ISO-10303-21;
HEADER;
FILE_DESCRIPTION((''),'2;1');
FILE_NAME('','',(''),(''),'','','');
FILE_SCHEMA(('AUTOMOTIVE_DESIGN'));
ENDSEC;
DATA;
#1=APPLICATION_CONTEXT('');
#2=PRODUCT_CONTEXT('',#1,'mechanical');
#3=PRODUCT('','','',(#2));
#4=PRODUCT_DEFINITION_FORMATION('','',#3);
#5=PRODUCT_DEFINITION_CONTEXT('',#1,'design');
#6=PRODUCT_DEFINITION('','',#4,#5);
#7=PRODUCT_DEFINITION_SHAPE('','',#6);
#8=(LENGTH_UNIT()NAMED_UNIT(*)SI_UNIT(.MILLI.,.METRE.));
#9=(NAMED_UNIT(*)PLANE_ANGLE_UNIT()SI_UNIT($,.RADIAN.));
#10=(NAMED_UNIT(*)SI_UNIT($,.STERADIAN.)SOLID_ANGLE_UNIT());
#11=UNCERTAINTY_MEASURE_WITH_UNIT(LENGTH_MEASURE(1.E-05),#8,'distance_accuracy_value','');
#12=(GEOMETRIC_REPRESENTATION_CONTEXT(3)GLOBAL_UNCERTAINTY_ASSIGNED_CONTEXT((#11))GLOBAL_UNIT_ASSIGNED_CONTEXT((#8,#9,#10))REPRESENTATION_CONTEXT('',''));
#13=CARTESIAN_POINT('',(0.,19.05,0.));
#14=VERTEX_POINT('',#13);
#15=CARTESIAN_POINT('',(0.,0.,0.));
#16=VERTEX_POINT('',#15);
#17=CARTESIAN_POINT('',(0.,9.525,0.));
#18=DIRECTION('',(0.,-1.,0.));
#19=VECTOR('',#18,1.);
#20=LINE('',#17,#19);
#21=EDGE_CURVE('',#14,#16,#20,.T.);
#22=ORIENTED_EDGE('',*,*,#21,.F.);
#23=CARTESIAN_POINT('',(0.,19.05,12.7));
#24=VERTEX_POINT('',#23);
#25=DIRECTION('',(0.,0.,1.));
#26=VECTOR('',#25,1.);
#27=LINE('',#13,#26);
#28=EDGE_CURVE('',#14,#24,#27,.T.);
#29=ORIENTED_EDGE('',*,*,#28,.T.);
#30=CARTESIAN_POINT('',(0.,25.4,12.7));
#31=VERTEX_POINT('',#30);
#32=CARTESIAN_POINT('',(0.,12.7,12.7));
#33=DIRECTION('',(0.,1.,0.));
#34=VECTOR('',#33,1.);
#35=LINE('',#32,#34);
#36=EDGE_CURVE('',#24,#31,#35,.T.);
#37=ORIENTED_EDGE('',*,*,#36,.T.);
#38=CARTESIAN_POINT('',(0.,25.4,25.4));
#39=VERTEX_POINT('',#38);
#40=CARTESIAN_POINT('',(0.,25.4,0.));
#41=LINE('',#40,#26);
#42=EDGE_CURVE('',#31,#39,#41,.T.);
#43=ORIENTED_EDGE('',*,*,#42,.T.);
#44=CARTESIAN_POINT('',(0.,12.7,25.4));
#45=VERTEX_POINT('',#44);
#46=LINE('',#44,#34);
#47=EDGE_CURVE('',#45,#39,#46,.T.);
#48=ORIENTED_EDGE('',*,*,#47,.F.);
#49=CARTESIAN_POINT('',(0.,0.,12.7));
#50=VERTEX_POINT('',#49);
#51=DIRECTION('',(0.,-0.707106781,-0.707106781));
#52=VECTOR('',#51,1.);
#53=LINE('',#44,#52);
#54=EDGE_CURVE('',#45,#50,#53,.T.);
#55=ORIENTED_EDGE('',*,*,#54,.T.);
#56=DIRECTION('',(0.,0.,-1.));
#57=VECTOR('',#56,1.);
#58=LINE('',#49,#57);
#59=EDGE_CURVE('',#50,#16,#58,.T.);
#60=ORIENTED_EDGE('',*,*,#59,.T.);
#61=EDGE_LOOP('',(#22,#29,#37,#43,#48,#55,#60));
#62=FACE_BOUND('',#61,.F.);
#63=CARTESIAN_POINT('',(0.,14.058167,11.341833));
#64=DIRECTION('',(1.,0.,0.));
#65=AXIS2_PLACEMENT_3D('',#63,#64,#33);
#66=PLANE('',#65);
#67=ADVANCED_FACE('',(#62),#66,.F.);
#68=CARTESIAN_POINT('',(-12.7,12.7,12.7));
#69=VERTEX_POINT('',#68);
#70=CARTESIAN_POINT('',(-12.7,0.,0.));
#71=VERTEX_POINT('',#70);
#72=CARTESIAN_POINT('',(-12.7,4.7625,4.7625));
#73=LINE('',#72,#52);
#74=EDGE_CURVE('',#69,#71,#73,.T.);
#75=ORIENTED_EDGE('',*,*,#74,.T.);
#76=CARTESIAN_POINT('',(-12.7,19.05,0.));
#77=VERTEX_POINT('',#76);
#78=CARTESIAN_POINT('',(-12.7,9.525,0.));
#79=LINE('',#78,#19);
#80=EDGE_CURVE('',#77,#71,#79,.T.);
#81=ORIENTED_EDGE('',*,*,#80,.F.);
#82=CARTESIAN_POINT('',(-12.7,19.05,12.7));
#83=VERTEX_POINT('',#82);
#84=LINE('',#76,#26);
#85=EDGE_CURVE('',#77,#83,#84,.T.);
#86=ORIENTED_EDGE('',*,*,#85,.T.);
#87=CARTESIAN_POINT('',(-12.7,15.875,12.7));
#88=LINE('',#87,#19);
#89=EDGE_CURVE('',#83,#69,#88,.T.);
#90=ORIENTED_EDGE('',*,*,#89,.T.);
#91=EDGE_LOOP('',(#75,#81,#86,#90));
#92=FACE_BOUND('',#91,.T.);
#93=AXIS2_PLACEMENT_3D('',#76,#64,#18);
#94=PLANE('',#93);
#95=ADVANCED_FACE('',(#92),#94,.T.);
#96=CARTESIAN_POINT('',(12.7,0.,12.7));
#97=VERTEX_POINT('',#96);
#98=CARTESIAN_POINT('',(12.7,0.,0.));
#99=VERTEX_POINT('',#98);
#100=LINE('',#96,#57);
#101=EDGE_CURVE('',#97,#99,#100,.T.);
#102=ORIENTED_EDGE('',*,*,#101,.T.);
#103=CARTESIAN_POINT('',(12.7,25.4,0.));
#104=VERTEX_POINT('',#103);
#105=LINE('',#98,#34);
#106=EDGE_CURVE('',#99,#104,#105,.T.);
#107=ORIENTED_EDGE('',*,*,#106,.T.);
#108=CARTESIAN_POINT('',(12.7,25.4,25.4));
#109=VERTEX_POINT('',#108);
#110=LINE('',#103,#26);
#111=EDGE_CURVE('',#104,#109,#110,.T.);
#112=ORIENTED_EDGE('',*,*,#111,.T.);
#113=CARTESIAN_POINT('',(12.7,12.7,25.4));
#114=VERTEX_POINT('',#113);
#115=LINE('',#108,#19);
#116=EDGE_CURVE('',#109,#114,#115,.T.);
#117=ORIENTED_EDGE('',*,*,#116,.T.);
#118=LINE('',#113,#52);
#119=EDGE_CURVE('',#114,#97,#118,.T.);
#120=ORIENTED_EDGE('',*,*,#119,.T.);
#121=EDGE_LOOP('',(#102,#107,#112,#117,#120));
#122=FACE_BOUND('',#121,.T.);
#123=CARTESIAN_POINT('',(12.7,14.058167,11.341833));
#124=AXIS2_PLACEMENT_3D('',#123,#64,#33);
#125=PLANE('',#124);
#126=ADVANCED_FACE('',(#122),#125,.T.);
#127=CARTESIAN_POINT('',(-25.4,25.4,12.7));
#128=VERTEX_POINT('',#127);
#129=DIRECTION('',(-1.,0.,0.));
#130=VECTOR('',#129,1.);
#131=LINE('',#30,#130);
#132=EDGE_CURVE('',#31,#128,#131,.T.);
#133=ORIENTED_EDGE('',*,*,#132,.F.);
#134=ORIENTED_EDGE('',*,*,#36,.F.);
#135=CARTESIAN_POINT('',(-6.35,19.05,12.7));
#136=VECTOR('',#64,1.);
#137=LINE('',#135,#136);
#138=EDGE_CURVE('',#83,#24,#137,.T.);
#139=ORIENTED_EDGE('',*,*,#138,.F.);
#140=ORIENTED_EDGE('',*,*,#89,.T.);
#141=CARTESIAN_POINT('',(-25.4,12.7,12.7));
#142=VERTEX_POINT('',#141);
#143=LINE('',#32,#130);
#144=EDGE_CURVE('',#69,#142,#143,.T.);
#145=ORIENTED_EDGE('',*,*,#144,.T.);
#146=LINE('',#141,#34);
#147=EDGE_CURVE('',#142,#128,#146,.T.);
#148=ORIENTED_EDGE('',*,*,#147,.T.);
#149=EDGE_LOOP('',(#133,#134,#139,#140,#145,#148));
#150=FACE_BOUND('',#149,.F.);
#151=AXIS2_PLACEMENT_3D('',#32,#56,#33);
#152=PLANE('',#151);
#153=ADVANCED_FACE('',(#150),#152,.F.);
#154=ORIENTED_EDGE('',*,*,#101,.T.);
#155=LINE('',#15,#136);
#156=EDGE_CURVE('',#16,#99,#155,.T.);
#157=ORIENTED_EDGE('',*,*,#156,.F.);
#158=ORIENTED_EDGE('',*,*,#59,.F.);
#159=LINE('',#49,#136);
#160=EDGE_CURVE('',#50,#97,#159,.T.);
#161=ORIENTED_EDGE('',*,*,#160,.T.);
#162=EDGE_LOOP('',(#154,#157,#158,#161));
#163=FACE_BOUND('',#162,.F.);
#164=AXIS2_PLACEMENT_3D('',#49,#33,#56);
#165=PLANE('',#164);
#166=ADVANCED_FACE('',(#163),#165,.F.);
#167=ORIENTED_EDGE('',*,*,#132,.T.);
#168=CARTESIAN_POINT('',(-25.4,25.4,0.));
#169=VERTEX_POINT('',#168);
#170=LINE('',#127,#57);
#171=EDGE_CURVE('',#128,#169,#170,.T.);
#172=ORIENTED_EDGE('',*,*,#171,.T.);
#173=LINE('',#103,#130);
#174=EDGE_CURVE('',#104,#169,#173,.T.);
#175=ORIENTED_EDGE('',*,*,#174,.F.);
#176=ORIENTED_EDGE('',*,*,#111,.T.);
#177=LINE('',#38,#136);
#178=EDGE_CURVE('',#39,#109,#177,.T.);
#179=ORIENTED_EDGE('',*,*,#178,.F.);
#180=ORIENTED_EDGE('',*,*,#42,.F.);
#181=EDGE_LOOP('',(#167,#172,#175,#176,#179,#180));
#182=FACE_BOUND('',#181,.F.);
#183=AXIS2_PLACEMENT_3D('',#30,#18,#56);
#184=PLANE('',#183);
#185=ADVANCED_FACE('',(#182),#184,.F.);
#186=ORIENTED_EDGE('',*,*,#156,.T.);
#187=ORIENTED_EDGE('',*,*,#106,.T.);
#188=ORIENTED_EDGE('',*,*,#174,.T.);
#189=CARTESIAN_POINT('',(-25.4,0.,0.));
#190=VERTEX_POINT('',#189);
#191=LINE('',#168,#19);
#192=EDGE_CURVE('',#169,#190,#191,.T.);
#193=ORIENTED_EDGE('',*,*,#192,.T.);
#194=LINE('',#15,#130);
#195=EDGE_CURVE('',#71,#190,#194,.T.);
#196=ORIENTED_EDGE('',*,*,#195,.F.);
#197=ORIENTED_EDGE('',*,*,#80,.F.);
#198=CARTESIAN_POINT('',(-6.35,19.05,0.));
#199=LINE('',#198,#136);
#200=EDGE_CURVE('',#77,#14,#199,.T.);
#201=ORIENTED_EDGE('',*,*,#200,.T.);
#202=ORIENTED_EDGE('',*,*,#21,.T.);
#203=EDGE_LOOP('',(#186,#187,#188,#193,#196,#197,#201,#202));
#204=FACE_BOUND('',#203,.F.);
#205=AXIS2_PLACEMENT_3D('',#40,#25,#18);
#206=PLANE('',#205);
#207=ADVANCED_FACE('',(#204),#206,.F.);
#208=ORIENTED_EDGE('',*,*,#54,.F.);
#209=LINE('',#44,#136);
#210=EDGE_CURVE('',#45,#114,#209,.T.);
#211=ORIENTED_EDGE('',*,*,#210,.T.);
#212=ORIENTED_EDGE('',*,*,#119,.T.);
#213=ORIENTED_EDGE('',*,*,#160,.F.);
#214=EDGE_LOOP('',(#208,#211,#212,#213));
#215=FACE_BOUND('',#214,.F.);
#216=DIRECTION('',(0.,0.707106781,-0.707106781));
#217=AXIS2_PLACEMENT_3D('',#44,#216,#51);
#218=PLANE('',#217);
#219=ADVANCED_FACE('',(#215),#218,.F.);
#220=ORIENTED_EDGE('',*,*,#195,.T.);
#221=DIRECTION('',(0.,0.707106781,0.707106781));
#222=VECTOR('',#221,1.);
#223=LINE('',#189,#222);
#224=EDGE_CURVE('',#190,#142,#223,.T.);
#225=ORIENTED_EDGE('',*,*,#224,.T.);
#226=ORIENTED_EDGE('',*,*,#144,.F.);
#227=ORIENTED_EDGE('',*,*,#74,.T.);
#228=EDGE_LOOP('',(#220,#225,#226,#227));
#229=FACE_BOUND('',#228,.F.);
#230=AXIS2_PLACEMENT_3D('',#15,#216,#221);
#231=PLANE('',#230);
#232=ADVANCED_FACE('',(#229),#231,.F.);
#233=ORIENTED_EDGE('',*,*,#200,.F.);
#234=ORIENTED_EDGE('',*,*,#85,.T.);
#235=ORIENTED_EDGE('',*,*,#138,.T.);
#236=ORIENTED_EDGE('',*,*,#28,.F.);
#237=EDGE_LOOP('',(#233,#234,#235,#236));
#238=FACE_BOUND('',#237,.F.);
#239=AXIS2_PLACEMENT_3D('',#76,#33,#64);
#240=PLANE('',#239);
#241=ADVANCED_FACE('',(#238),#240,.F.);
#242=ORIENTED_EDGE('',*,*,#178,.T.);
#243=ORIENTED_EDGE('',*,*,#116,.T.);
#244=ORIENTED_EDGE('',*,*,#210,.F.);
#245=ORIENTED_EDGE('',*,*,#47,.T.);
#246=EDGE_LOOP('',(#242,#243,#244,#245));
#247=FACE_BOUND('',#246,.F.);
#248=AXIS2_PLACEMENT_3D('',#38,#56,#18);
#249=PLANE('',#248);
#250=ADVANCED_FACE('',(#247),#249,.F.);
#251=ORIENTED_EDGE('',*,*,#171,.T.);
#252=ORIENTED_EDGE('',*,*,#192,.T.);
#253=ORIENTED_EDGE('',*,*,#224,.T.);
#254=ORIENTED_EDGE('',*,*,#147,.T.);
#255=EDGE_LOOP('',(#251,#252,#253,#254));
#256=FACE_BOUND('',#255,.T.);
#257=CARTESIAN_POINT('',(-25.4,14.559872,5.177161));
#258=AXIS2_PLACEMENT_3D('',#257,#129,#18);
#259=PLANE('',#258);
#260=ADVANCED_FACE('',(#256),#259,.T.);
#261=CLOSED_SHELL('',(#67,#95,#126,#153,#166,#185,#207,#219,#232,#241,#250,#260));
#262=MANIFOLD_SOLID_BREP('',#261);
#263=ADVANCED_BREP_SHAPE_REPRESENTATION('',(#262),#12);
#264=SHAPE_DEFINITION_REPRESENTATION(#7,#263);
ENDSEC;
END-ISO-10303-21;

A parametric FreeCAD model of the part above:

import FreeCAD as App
import Part
import Sketcher

V = App.Vector
Q = App.Units.Quantity

doc = App.newDocument("Part")
body = doc.addObject("PartDesign::Body", "Body")

sketch1 = body.newObject("Sketcher::SketchObject", "Sketch")
sketch1.AttachmentSupport = (doc.getObject("YZ_Plane"), [""])
sketch1.MapMode = "FlatFace"
sketch1.addGeometry([
    Part.LineSegment(V(0, 12.7, 0), V(0, 0, 0)),
    Part.LineSegment(V(0, 0, 0), V(25.4, 0, 0)),
    Part.LineSegment(V(25.4, 0, 0), V(25.4, 25.4, 0)),
    Part.LineSegment(V(25.4, 25.4, 0), V(12.7, 25.4, 0)),
    Part.LineSegment(V(12.7, 25.4, 0), V(0, 12.7, 0)),
], False)
sketch1.addConstraint([
    Sketcher.Constraint("Coincident", 0, 2, 1, 1),
    Sketcher.Constraint("Coincident", 1, 2, 2, 1),
    Sketcher.Constraint("Coincident", 2, 2, 3, 1),
    Sketcher.Constraint("Coincident", 3, 2, 4, 1),
    Sketcher.Constraint("Coincident", 4, 2, 0, 1),
    Sketcher.Constraint("Vertical", 0),
    Sketcher.Constraint("Horizontal", 1),
    Sketcher.Constraint("Vertical", 2),
    Sketcher.Constraint("Horizontal", 3),
    Sketcher.Constraint("Coincident", 0, 2, -1, 1),
    Sketcher.Constraint("Equal", 3, 0),
    Sketcher.Constraint("Equal", 1, 2),
    Sketcher.Constraint("DistanceX", 1, 1, 1, 2, Q("1 in")),
    Sketcher.Constraint("DistanceX", 3, 2, 3, 1, Q("0.5 in")),
])
pad1 = body.newObject("PartDesign::Pad", "Pad")
pad1.Profile = sketch1
pad1.Length = Q("0.5 in")

sketch2 = body.newObject("Sketcher::SketchObject", "Sketch001")
sketch2.AttachmentSupport = (doc.getObject("YZ_Plane"), [""])
sketch2.MapMode = "FlatFace"
sketch2.addGeometry([
    Part.LineSegment(V(12.7, 12.7, 0), V(25.4, 12.7, 0)),
    Part.LineSegment(V(25.4, 12.7, 0), V(25.4, 0, 0)),
    Part.LineSegment(V(25.4, 0, 0), V(0, 0, 0)),
    Part.LineSegment(V(0, 0, 0), V(12.7, 12.7, 0)),
], False)
sketch2.addConstraint([
    Sketcher.Constraint("Coincident", 0, 2, 1, 1),
    Sketcher.Constraint("Coincident", 1, 2, 2, 1),
    Sketcher.Constraint("Coincident", 2, 2, 3, 1),
    Sketcher.Constraint("Coincident", 3, 2, 0, 1),
    Sketcher.Constraint("Horizontal", 0),
    Sketcher.Constraint("Vertical", 1),
    Sketcher.Constraint("Horizontal", 2),
    Sketcher.Constraint("Coincident", 2, 2, -1, 1),
    Sketcher.Constraint("Equal", 0, 1),
    Sketcher.Constraint("DistanceX", 2, 2, 2, 1, Q("1 in")),
    Sketcher.Constraint("DistanceX", 0, 1, 0, 2, Q("0.5 in")),
])
pad2 = body.newObject("PartDesign::Pad", "Pad001")
pad2.Profile = sketch2
pad2.Length = Q("1 in")
pad2.Reversed = True

sketch3 = body.newObject("Sketcher::SketchObject", "Sketch002")
sketch3.AttachmentSupport = (doc.getObject("XY_Plane"), [""])
sketch3.MapMode = "FlatFace"
sketch3.addGeometry([
    Part.LineSegment(V(-12.7, 0, 0), V(-12.7, 19.05, 0)),
    Part.LineSegment(V(-12.7, 19.05, 0), V(0, 19.05, 0)),
    Part.LineSegment(V(0, 19.05, 0), V(0, 0, 0)),
    Part.LineSegment(V(0, 0, 0), V(-12.7, 0, 0)),
], False)
sketch3.addConstraint([
    Sketcher.Constraint("Coincident", 0, 2, 1, 1),
    Sketcher.Constraint("Coincident", 1, 2, 2, 1),
    Sketcher.Constraint("Coincident", 2, 2, 3, 1),
    Sketcher.Constraint("Coincident", 3, 2, 0, 1),
    Sketcher.Constraint("Vertical", 0),
    Sketcher.Constraint("Horizontal", 1),
    Sketcher.Constraint("Vertical", 2),
    Sketcher.Constraint("Horizontal", 3),
    Sketcher.Constraint("Coincident", 2, 2, -1, 1),
    Sketcher.Constraint("DistanceX", 1, 1, 1, 2, Q("0.5 in")),
    Sketcher.Constraint("DistanceY", 0, 1, 0, 2, Q("0.75 in")),
])
pocket1 = body.newObject("PartDesign::Pocket", "Pocket")
pocket1.Profile = sketch3
pocket1.Type = "ThroughAll"
pocket1.Reversed = True

doc.recompute()
